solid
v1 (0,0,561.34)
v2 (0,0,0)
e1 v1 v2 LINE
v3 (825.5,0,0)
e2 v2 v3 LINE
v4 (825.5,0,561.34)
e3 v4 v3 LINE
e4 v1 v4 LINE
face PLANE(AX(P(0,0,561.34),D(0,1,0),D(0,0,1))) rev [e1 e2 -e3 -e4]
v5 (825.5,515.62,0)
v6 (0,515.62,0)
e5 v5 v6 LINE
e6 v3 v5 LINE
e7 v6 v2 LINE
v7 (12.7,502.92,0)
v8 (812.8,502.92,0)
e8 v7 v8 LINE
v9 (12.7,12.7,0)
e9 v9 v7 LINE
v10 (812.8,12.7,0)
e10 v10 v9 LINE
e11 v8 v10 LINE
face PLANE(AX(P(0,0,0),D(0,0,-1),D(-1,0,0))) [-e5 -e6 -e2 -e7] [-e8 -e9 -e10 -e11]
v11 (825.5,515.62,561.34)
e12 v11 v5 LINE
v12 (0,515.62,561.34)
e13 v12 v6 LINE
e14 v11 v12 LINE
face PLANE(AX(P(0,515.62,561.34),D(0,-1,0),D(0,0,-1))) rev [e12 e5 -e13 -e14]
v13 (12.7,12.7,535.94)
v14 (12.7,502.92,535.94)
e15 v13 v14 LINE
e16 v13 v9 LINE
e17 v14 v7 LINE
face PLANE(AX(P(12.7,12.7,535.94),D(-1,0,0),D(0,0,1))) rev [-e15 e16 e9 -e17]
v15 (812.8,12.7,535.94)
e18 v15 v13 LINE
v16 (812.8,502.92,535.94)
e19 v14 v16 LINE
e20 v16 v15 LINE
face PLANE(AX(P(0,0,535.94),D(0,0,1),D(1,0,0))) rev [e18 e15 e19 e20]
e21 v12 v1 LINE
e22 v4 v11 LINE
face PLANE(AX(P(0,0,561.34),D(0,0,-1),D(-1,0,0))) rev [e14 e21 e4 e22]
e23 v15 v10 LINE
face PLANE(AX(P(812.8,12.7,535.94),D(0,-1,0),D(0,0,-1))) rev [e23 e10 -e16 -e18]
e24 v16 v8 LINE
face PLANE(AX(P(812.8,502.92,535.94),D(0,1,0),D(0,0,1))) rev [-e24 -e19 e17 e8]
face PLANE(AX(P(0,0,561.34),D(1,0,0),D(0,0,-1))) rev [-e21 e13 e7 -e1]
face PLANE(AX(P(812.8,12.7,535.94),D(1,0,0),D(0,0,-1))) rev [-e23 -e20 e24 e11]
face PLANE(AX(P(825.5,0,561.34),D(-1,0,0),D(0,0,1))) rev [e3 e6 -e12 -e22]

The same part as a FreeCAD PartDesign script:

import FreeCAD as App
import Part
import Sketcher
from FreeCAD import Vector
Q = App.Units.Quantity

doc = App.newDocument("Part")
body = doc.addObject("PartDesign::Body", "Body")

# Sketch on XY plane
sketch1 = body.newObject("Sketcher::SketchObject", "Sketch")
sketch1.AttachmentSupport = (doc.getObject("XY_Plane"), [""])
sketch1.MapMode = "FlatFace"
sketch1.addGeometry(Part.LineSegment(Vector(0, 515.62, 0), Vector(0, 0, 0)), False)
sketch1.addGeometry(Part.LineSegment(Vector(0, 0, 0), Vector(825.5, 0, 0)), False)
sketch1.addGeometry(Part.LineSegment(Vector(825.5, 0, 0), Vector(825.5, 515.62, 0)), False)
sketch1.addGeometry(Part.LineSegment(Vector(825.5, 515.62, 0), Vector(0, 515.62, 0)), False)
sketch1.addConstraint(Sketcher.Constraint("Coincident", 0, 2, 1, 1))
sketch1.addConstraint(Sketcher.Constraint("Coincident", 1, 2, 2, 1))
sketch1.addConstraint(Sketcher.Constraint("Coincident", 2, 2, 3, 1))
sketch1.addConstraint(Sketcher.Constraint("Coincident", 3, 2, 0, 1))
sketch1.addConstraint(Sketcher.Constraint("Vertical", 0))
sketch1.addConstraint(Sketcher.Constraint("Horizontal", 1))
sketch1.addConstraint(Sketcher.Constraint("Vertical", 2))
sketch1.addConstraint(Sketcher.Constraint("Horizontal", 3))
sketch1.addConstraint(Sketcher.Constraint("Coincident", 0, 2, -1, 1))
sketch1.addConstraint(Sketcher.Constraint("DistanceX", 1, 1, 1, 2, Q("32.5 in")))
sketch1.addConstraint(Sketcher.Constraint("DistanceY", 0, 2, 0, 1, Q("20.3 in")))
pad1 = body.newObject("PartDesign::Pad", "Pad")
pad1.Profile = sketch1
pad1.Length = Q("22.1 in")

# Sketch on XY plane
sketch2 = body.newObject("Sketcher::SketchObject", "Sketch001")
sketch2.AttachmentSupport = (doc.getObject("XY_Plane"), [""])
sketch2.MapMode = "FlatFace"
sketch2.addGeometry(Part.LineSegment(Vector(812.8, 502.92, 0), Vector(812.8, 12.7, 0)), False)
sketch2.addGeometry(Part.LineSegment(Vector(812.8, 12.7, 0), Vector(12.7, 12.7, 0)), False)
sketch2.addGeometry(Part.LineSegment(Vector(12.7, 12.7, 0), Vector(12.7, 502.92, 0)), False)
sketch2.addGeometry(Part.LineSegment(Vector(12.7, 502.92, 0), Vector(812.8, 502.92, 0)), False)
sketch2.addConstraint(Sketcher.Constraint("Coincident", 0, 2, 1, 1))
sketch2.addConstraint(Sketcher.Constraint("Coincident", 1, 2, 2, 1))
sketch2.addConstraint(Sketcher.Constraint("Coincident", 2, 2, 3, 1))
sketch2.addConstraint(Sketcher.Constraint("Coincident", 3, 2, 0, 1))
sketch2.addConstraint(Sketcher.Constraint("Vertical", 0))
sketch2.addConstraint(Sketcher.Constraint("Horizontal", 1))
sketch2.addConstraint(Sketcher.Constraint("Vertical", 2))
sketch2.addConstraint(Sketcher.Constraint("Horizontal", 3))
sketch2.addConstraint(Sketcher.Constraint("DistanceX", 1, 2, 1, 1, Q("31.5 in")))
sketch2.addConstraint(Sketcher.Constraint("DistanceY", 0, 2, 0, 1, Q("19.3 in")))
sketch2.addConstraint(Sketcher.Constraint("DistanceX", -1, 1, 0, 2, Q("32 in")))
sketch2.addConstraint(Sketcher.Constraint("DistanceY", -1, 1, 0, 2, Q("0.5 in")))
pocket1 = body.newObject("PartDesign::Pocket", "Pocket")
pocket1.Profile = sketch2
pocket1.Length = Q("21.1 in")
pocket1.Reversed = True

doc.recompute()
